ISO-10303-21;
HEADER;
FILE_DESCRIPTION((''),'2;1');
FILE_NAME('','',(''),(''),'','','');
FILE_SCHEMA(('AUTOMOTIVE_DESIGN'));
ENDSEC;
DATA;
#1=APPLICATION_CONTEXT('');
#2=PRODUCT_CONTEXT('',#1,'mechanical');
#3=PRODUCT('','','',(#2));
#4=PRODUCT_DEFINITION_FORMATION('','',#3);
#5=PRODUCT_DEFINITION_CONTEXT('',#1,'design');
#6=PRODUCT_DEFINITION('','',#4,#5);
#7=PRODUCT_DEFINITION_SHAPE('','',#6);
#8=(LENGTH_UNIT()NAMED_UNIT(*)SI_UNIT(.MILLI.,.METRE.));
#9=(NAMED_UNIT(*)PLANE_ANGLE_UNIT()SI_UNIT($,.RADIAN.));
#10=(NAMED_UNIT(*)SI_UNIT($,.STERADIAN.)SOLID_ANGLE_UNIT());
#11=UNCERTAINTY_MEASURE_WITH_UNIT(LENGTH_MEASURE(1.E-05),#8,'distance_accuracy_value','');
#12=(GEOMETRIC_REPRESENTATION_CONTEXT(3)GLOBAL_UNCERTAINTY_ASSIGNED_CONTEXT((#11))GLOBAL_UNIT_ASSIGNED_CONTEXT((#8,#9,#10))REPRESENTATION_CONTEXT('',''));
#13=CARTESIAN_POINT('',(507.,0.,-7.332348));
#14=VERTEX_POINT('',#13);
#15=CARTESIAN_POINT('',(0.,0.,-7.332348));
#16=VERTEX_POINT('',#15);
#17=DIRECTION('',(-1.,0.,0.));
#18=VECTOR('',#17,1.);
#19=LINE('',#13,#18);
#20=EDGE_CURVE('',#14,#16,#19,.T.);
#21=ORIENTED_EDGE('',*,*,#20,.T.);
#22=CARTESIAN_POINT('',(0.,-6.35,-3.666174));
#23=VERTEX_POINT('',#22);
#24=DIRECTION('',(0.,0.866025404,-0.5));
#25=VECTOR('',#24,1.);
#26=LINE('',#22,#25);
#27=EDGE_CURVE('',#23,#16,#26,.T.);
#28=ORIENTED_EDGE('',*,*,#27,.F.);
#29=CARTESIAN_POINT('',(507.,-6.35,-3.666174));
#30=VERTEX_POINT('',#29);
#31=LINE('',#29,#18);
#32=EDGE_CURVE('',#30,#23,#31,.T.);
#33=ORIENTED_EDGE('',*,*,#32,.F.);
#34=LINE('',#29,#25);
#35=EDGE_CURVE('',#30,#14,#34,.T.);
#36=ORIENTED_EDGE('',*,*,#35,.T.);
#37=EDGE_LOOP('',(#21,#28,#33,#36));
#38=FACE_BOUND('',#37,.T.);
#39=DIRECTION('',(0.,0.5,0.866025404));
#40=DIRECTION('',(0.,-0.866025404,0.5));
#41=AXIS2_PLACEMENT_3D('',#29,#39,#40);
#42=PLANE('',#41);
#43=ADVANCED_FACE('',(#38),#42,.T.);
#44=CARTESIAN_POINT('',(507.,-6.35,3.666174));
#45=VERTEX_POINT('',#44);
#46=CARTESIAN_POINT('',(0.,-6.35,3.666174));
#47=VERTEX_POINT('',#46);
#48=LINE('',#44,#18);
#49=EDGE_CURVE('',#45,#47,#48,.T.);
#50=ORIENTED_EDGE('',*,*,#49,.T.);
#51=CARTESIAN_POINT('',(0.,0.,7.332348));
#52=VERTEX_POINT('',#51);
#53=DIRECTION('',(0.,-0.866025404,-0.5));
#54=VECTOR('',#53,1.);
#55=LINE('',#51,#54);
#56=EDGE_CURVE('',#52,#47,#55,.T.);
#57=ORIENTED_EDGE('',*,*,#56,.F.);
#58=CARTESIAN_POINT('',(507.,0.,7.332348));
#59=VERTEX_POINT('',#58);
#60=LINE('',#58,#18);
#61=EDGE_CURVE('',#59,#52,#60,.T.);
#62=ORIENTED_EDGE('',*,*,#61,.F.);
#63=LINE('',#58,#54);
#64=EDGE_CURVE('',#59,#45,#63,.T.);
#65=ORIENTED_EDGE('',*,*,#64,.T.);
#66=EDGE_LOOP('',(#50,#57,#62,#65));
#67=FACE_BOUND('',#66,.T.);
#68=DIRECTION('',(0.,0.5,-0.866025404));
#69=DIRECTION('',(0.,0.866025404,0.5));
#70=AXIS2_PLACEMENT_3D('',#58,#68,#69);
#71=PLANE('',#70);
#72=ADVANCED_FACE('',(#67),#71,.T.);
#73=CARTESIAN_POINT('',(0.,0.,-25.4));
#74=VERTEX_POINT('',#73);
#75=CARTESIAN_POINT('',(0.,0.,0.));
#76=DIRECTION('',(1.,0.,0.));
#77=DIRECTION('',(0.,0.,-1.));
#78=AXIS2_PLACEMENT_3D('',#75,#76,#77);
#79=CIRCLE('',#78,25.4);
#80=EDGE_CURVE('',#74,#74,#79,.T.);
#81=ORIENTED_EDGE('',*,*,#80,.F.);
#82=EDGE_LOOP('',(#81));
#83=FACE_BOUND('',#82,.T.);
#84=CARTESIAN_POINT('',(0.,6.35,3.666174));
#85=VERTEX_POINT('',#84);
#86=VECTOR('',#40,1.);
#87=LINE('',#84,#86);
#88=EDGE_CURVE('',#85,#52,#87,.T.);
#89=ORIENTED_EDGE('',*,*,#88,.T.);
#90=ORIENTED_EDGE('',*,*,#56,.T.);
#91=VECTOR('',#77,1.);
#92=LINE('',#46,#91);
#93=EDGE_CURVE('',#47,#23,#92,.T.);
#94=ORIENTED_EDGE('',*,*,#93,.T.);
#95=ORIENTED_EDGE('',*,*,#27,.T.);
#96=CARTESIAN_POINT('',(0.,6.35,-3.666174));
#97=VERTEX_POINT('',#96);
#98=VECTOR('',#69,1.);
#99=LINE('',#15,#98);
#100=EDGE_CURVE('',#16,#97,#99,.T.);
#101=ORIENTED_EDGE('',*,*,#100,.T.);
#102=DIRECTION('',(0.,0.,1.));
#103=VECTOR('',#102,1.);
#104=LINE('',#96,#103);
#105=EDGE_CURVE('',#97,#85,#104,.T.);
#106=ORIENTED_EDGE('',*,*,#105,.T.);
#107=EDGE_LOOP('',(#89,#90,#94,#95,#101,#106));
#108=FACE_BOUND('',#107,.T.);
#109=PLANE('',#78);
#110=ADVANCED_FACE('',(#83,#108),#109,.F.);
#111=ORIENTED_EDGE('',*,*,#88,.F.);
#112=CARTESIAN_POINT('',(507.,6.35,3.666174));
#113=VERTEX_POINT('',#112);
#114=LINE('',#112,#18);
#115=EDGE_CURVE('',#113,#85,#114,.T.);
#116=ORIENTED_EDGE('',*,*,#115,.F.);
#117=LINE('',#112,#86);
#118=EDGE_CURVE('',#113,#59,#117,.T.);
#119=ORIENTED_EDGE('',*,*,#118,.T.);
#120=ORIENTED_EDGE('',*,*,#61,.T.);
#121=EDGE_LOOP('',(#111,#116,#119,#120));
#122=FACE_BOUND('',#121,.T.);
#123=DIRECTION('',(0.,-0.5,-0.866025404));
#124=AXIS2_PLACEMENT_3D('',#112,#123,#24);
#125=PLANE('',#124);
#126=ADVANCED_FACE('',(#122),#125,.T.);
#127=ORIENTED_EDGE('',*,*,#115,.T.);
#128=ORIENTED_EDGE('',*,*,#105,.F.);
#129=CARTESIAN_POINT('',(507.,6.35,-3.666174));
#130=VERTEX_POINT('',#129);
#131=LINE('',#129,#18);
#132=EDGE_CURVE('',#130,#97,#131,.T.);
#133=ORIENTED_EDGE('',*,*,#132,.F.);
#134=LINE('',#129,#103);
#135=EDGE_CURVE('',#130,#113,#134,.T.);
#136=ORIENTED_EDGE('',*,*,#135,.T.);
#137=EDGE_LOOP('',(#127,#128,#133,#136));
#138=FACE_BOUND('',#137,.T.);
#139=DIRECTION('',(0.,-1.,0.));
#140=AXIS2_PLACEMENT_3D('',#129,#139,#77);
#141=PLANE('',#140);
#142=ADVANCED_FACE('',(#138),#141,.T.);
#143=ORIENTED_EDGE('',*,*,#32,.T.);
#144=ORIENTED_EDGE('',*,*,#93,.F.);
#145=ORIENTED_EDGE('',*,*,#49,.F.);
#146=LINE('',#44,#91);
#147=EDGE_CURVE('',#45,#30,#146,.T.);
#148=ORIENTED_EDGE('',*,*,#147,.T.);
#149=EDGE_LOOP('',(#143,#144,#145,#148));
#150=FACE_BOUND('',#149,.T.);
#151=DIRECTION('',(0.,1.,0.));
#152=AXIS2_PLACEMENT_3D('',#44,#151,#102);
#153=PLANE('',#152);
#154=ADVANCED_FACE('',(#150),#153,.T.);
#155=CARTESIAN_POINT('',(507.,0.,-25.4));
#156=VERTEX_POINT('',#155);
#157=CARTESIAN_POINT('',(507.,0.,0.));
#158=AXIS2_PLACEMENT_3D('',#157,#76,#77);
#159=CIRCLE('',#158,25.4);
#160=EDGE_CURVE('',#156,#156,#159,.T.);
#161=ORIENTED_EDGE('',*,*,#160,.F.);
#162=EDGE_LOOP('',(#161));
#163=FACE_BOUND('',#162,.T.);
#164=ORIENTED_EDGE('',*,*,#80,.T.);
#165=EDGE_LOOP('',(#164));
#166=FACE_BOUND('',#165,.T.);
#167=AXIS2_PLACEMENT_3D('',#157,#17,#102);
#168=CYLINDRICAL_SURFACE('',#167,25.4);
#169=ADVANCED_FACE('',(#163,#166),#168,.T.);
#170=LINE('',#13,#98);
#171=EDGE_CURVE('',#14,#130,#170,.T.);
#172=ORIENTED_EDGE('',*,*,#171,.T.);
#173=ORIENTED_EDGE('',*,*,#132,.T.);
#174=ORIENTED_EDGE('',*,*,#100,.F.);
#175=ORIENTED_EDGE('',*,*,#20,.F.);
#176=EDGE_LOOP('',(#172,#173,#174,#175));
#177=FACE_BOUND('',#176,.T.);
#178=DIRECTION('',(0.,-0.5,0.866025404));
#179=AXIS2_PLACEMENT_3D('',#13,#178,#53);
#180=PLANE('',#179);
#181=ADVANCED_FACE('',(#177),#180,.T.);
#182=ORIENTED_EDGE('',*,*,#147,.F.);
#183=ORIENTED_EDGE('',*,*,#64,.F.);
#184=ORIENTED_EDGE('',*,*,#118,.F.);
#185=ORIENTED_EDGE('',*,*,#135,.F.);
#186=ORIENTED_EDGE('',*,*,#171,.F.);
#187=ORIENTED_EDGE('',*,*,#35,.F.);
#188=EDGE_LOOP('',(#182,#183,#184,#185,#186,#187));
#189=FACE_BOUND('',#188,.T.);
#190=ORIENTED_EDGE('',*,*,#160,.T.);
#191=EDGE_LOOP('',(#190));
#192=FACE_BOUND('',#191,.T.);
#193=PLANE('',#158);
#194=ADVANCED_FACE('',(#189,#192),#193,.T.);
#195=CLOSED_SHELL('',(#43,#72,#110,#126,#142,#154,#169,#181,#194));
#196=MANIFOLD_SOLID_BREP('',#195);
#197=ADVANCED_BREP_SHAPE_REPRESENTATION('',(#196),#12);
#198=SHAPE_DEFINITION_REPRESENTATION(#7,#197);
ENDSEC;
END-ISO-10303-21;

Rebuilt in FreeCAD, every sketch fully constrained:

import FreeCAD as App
import Part
import Sketcher
from FreeCAD import Vector
Q = App.Units.Quantity


def add_polygon(sketch, points):
    """Adds a closed chain of lines whose ends are joined by coincident constraints."""
    first, n = sketch.GeometryCount, len(points)
    for a, b in zip(points, points[1:] + points[:1]):
        sketch.addGeometry(Part.LineSegment(App.Vector(*a, 0), App.Vector(*b, 0)), False)
    for i in range(n):
        sketch.addConstraint(Sketcher.Constraint("Coincident", first + i, 2, first + (i + 1) % n, 1))

doc = App.newDocument("Part")
body = doc.addObject("PartDesign::Body", "Body")

# Sketch on YZ plane
sketch1 = doc.addObject("Sketcher::SketchObject", "Sketch")
body.addObject(sketch1)
sketch1.AttachmentSupport = (doc.YZ_Plane, [""])
sketch1.MapMode = "FlatFace"
sketch1.addGeometry(Part.Circle(Vector(0, 0, 0), Vector(0, 0, 1), 25), False)  # 0
add_polygon(sketch1, [(-6, 4), (0, 7), (6, 4), (6, -4), (0, -7), (-6, -4)])  # lines 1-6
sketch1.addConstraint([
    Sketcher.Constraint("Vertical", 3),
    Sketcher.Constraint("Vertical", 6),
    Sketcher.Constraint("Coincident", 0, 3, -1, 1),
    Sketcher.Constraint("Symmetric", 1, 2, 4, 2, -1, 1),
    Sketcher.Constraint("Symmetric", 2, 2, 5, 2, -1, 1),
    Sketcher.Constraint("PointOnObject", 1, 2, -2),
    Sketcher.Constraint("Parallel", 1, 4),
    Sketcher.Constraint("Horizontal", 3, 2, 5, 2),
    Sketcher.Constraint("Diameter", 0, 50.8),
    Sketcher.Constraint("Angle", 1, Q("30 deg")),
    Sketcher.Constraint("DistanceX", 5, 2, 3, 2, 12.7),
    Sketcher.Constraint("DistanceY", 3, 2, 3, 1, 7.332348),
])
pad1 = doc.addObject("PartDesign::Pad", "Pad")
body.addObject(pad1)
pad1.Profile = sketch1
pad1.Length = 507

doc.recompute()
